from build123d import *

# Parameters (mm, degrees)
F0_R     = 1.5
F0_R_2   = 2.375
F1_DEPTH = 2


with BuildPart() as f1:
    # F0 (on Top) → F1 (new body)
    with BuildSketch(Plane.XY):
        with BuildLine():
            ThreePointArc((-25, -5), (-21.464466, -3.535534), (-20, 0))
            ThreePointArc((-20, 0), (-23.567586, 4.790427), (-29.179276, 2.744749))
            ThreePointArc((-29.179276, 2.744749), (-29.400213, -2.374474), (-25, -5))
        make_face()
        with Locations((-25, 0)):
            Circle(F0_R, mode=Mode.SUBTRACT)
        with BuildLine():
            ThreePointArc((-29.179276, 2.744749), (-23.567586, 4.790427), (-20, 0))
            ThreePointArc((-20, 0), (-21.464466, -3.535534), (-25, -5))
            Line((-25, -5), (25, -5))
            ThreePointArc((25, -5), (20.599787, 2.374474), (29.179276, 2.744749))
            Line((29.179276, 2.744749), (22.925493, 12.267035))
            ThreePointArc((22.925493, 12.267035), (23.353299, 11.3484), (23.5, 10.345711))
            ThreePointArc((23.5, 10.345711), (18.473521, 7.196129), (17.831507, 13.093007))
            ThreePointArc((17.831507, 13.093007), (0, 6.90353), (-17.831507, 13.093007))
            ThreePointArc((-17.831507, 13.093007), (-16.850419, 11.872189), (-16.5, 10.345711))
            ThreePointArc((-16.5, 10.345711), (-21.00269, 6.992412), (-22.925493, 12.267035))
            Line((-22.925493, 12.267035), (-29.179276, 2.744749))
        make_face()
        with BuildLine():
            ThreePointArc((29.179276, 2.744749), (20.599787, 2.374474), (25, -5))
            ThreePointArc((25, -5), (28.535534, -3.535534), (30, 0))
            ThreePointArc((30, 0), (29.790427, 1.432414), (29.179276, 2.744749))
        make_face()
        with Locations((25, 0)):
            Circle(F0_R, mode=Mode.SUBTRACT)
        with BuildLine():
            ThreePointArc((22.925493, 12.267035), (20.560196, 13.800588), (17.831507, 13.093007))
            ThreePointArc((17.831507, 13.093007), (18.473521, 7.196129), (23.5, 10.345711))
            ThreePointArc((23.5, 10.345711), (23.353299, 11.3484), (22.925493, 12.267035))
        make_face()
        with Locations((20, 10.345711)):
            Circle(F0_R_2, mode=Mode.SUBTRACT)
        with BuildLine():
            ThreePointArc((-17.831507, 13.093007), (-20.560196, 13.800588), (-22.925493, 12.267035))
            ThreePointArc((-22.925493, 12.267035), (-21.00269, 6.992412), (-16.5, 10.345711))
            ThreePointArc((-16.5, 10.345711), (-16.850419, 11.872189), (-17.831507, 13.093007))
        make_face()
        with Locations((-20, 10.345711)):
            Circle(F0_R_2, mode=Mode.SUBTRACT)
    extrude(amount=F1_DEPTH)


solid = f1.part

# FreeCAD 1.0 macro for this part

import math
import FreeCAD as App
import Part
import Sketcher
from FreeCAD import Vector

doc = App.newDocument("Part")
body = doc.addObject("PartDesign::Body", "Body")

sketch1 = doc.addObject("Sketcher::SketchObject", "Sketch")
body.addObject(sketch1)
sketch1.AttachmentSupport = (doc.XY_Plane, [""])
sketch1.MapMode = "FlatFace"
sketch1.addGeometry([
    Part.ArcOfCircle(Part.Circle(Vector(-25, 0, 0), Vector(0, 0, 1), 5), math.radians(147), math.radians(270)),
    Part.LineSegment(Vector(-25, -5, 0), Vector(25, -5, 0)),
    Part.ArcOfCircle(Part.Circle(Vector(25, 0, 0), Vector(0, 0, 1), 5), math.radians(-90), math.radians(0)),
    Part.ArcOfCircle(Part.Circle(Vector(25, 0, 0), Vector(0, 0, 1), 5), math.radians(0), math.radians(33)),
    Part.LineSegment(Vector(29.2, 2.7, 0), Vector(22.9, 12.3, 0)),
    Part.ArcOfCircle(Part.Circle(Vector(20, 10.3, 0), Vector(0, 0, 1), 3.5), math.radians(33), math.radians(128)),
    Part.ArcOfCircle(Part.Circle(Vector(0, 35.7, 0), Vector(0, 0, 1), 28.8), math.radians(-128), math.radians(-52)),
    Part.ArcOfCircle(Part.Circle(Vector(-20, 10.3, 0), Vector(0, 0, 1), 3.5), math.radians(52), math.radians(147)),
    Part.LineSegment(Vector(-22.9, 12.3, 0), Vector(-29.2, 2.7, 0)),
    Part.Circle(Vector(-25, 0, 0), Vector(0, 0, 1), 1.5),
    Part.Circle(Vector(25, 0, 0), Vector(0, 0, 1), 1.5),
    Part.Circle(Vector(-20, 10.3, 0), Vector(0, 0, 1), 2.4),
    Part.Circle(Vector(20, 10.3, 0), Vector(0, 0, 1), 2.4),
], False)
sketch1.addConstraint([
    Sketcher.Constraint("Tangent", 0, 2, 1, 1),
    Sketcher.Constraint("Tangent", 1, 2, 2, 1),
    Sketcher.Constraint("Tangent", 2, 2, 3, 1),
    Sketcher.Constraint("Tangent", 3, 2, 4, 1),
    Sketcher.Constraint("Tangent", 4, 2, 5, 1),
    Sketcher.Constraint("Tangent", 5, 2, 6, 2),
    Sketcher.Constraint("Tangent", 6, 1, 7, 1),
    Sketcher.Constraint("Tangent", 7, 2, 8, 1),
    Sketcher.Constraint("Tangent", 8, 2, 0, 1),
    Sketcher.Constraint("Horizontal", 1),
    Sketcher.Constraint("Coincident", 9, 3, 0, 3),
    Sketcher.Constraint("Coincident", 10, 3, 2, 3),
    Sketcher.Constraint("Coincident", 11, 3, 7, 3),
    Sketcher.Constraint("Coincident", 12, 3, 5, 3),
    Sketcher.Constraint("Equal", 0, 2),
    Sketcher.Constraint("Equal", 5, 7),
    Sketcher.Constraint("Equal", 9, 10),
    Sketcher.Constraint("Equal", 11, 12),
    Sketcher.Constraint("Symmetric", 0, 3, 2, 3, -1, 1),
    Sketcher.Constraint("Symmetric", 5, 3, 7, 3, -2),
    Sketcher.Constraint("PointOnObject", 2, 2, -1),
    Sketcher.Constraint("Horizontal", 4, 2, 7, 2),
    Sketcher.Constraint("Diameter", 9, 3.0),
    Sketcher.Constraint("Radius", 0, 4.999999),
    Sketcher.Constraint("Radius", 5, 3.5),
    Sketcher.Constraint("Diameter", 11, 4.75),
    Sketcher.Constraint("DistanceX", 1, 1, 1, 2, 50.0),
    Sketcher.Constraint("DistanceX", -1, 1, 5, 3, 20.0),
    Sketcher.Constraint("Radius", 6, 28.780482),
    Sketcher.Constraint("DistanceY", -1, 1, 5, 3, 10.34571),
])
pad1 = doc.addObject("PartDesign::Pad", "Pad")
body.addObject(pad1)
pad1.Profile = sketch1
pad1.Length = 2

doc.recompute()
